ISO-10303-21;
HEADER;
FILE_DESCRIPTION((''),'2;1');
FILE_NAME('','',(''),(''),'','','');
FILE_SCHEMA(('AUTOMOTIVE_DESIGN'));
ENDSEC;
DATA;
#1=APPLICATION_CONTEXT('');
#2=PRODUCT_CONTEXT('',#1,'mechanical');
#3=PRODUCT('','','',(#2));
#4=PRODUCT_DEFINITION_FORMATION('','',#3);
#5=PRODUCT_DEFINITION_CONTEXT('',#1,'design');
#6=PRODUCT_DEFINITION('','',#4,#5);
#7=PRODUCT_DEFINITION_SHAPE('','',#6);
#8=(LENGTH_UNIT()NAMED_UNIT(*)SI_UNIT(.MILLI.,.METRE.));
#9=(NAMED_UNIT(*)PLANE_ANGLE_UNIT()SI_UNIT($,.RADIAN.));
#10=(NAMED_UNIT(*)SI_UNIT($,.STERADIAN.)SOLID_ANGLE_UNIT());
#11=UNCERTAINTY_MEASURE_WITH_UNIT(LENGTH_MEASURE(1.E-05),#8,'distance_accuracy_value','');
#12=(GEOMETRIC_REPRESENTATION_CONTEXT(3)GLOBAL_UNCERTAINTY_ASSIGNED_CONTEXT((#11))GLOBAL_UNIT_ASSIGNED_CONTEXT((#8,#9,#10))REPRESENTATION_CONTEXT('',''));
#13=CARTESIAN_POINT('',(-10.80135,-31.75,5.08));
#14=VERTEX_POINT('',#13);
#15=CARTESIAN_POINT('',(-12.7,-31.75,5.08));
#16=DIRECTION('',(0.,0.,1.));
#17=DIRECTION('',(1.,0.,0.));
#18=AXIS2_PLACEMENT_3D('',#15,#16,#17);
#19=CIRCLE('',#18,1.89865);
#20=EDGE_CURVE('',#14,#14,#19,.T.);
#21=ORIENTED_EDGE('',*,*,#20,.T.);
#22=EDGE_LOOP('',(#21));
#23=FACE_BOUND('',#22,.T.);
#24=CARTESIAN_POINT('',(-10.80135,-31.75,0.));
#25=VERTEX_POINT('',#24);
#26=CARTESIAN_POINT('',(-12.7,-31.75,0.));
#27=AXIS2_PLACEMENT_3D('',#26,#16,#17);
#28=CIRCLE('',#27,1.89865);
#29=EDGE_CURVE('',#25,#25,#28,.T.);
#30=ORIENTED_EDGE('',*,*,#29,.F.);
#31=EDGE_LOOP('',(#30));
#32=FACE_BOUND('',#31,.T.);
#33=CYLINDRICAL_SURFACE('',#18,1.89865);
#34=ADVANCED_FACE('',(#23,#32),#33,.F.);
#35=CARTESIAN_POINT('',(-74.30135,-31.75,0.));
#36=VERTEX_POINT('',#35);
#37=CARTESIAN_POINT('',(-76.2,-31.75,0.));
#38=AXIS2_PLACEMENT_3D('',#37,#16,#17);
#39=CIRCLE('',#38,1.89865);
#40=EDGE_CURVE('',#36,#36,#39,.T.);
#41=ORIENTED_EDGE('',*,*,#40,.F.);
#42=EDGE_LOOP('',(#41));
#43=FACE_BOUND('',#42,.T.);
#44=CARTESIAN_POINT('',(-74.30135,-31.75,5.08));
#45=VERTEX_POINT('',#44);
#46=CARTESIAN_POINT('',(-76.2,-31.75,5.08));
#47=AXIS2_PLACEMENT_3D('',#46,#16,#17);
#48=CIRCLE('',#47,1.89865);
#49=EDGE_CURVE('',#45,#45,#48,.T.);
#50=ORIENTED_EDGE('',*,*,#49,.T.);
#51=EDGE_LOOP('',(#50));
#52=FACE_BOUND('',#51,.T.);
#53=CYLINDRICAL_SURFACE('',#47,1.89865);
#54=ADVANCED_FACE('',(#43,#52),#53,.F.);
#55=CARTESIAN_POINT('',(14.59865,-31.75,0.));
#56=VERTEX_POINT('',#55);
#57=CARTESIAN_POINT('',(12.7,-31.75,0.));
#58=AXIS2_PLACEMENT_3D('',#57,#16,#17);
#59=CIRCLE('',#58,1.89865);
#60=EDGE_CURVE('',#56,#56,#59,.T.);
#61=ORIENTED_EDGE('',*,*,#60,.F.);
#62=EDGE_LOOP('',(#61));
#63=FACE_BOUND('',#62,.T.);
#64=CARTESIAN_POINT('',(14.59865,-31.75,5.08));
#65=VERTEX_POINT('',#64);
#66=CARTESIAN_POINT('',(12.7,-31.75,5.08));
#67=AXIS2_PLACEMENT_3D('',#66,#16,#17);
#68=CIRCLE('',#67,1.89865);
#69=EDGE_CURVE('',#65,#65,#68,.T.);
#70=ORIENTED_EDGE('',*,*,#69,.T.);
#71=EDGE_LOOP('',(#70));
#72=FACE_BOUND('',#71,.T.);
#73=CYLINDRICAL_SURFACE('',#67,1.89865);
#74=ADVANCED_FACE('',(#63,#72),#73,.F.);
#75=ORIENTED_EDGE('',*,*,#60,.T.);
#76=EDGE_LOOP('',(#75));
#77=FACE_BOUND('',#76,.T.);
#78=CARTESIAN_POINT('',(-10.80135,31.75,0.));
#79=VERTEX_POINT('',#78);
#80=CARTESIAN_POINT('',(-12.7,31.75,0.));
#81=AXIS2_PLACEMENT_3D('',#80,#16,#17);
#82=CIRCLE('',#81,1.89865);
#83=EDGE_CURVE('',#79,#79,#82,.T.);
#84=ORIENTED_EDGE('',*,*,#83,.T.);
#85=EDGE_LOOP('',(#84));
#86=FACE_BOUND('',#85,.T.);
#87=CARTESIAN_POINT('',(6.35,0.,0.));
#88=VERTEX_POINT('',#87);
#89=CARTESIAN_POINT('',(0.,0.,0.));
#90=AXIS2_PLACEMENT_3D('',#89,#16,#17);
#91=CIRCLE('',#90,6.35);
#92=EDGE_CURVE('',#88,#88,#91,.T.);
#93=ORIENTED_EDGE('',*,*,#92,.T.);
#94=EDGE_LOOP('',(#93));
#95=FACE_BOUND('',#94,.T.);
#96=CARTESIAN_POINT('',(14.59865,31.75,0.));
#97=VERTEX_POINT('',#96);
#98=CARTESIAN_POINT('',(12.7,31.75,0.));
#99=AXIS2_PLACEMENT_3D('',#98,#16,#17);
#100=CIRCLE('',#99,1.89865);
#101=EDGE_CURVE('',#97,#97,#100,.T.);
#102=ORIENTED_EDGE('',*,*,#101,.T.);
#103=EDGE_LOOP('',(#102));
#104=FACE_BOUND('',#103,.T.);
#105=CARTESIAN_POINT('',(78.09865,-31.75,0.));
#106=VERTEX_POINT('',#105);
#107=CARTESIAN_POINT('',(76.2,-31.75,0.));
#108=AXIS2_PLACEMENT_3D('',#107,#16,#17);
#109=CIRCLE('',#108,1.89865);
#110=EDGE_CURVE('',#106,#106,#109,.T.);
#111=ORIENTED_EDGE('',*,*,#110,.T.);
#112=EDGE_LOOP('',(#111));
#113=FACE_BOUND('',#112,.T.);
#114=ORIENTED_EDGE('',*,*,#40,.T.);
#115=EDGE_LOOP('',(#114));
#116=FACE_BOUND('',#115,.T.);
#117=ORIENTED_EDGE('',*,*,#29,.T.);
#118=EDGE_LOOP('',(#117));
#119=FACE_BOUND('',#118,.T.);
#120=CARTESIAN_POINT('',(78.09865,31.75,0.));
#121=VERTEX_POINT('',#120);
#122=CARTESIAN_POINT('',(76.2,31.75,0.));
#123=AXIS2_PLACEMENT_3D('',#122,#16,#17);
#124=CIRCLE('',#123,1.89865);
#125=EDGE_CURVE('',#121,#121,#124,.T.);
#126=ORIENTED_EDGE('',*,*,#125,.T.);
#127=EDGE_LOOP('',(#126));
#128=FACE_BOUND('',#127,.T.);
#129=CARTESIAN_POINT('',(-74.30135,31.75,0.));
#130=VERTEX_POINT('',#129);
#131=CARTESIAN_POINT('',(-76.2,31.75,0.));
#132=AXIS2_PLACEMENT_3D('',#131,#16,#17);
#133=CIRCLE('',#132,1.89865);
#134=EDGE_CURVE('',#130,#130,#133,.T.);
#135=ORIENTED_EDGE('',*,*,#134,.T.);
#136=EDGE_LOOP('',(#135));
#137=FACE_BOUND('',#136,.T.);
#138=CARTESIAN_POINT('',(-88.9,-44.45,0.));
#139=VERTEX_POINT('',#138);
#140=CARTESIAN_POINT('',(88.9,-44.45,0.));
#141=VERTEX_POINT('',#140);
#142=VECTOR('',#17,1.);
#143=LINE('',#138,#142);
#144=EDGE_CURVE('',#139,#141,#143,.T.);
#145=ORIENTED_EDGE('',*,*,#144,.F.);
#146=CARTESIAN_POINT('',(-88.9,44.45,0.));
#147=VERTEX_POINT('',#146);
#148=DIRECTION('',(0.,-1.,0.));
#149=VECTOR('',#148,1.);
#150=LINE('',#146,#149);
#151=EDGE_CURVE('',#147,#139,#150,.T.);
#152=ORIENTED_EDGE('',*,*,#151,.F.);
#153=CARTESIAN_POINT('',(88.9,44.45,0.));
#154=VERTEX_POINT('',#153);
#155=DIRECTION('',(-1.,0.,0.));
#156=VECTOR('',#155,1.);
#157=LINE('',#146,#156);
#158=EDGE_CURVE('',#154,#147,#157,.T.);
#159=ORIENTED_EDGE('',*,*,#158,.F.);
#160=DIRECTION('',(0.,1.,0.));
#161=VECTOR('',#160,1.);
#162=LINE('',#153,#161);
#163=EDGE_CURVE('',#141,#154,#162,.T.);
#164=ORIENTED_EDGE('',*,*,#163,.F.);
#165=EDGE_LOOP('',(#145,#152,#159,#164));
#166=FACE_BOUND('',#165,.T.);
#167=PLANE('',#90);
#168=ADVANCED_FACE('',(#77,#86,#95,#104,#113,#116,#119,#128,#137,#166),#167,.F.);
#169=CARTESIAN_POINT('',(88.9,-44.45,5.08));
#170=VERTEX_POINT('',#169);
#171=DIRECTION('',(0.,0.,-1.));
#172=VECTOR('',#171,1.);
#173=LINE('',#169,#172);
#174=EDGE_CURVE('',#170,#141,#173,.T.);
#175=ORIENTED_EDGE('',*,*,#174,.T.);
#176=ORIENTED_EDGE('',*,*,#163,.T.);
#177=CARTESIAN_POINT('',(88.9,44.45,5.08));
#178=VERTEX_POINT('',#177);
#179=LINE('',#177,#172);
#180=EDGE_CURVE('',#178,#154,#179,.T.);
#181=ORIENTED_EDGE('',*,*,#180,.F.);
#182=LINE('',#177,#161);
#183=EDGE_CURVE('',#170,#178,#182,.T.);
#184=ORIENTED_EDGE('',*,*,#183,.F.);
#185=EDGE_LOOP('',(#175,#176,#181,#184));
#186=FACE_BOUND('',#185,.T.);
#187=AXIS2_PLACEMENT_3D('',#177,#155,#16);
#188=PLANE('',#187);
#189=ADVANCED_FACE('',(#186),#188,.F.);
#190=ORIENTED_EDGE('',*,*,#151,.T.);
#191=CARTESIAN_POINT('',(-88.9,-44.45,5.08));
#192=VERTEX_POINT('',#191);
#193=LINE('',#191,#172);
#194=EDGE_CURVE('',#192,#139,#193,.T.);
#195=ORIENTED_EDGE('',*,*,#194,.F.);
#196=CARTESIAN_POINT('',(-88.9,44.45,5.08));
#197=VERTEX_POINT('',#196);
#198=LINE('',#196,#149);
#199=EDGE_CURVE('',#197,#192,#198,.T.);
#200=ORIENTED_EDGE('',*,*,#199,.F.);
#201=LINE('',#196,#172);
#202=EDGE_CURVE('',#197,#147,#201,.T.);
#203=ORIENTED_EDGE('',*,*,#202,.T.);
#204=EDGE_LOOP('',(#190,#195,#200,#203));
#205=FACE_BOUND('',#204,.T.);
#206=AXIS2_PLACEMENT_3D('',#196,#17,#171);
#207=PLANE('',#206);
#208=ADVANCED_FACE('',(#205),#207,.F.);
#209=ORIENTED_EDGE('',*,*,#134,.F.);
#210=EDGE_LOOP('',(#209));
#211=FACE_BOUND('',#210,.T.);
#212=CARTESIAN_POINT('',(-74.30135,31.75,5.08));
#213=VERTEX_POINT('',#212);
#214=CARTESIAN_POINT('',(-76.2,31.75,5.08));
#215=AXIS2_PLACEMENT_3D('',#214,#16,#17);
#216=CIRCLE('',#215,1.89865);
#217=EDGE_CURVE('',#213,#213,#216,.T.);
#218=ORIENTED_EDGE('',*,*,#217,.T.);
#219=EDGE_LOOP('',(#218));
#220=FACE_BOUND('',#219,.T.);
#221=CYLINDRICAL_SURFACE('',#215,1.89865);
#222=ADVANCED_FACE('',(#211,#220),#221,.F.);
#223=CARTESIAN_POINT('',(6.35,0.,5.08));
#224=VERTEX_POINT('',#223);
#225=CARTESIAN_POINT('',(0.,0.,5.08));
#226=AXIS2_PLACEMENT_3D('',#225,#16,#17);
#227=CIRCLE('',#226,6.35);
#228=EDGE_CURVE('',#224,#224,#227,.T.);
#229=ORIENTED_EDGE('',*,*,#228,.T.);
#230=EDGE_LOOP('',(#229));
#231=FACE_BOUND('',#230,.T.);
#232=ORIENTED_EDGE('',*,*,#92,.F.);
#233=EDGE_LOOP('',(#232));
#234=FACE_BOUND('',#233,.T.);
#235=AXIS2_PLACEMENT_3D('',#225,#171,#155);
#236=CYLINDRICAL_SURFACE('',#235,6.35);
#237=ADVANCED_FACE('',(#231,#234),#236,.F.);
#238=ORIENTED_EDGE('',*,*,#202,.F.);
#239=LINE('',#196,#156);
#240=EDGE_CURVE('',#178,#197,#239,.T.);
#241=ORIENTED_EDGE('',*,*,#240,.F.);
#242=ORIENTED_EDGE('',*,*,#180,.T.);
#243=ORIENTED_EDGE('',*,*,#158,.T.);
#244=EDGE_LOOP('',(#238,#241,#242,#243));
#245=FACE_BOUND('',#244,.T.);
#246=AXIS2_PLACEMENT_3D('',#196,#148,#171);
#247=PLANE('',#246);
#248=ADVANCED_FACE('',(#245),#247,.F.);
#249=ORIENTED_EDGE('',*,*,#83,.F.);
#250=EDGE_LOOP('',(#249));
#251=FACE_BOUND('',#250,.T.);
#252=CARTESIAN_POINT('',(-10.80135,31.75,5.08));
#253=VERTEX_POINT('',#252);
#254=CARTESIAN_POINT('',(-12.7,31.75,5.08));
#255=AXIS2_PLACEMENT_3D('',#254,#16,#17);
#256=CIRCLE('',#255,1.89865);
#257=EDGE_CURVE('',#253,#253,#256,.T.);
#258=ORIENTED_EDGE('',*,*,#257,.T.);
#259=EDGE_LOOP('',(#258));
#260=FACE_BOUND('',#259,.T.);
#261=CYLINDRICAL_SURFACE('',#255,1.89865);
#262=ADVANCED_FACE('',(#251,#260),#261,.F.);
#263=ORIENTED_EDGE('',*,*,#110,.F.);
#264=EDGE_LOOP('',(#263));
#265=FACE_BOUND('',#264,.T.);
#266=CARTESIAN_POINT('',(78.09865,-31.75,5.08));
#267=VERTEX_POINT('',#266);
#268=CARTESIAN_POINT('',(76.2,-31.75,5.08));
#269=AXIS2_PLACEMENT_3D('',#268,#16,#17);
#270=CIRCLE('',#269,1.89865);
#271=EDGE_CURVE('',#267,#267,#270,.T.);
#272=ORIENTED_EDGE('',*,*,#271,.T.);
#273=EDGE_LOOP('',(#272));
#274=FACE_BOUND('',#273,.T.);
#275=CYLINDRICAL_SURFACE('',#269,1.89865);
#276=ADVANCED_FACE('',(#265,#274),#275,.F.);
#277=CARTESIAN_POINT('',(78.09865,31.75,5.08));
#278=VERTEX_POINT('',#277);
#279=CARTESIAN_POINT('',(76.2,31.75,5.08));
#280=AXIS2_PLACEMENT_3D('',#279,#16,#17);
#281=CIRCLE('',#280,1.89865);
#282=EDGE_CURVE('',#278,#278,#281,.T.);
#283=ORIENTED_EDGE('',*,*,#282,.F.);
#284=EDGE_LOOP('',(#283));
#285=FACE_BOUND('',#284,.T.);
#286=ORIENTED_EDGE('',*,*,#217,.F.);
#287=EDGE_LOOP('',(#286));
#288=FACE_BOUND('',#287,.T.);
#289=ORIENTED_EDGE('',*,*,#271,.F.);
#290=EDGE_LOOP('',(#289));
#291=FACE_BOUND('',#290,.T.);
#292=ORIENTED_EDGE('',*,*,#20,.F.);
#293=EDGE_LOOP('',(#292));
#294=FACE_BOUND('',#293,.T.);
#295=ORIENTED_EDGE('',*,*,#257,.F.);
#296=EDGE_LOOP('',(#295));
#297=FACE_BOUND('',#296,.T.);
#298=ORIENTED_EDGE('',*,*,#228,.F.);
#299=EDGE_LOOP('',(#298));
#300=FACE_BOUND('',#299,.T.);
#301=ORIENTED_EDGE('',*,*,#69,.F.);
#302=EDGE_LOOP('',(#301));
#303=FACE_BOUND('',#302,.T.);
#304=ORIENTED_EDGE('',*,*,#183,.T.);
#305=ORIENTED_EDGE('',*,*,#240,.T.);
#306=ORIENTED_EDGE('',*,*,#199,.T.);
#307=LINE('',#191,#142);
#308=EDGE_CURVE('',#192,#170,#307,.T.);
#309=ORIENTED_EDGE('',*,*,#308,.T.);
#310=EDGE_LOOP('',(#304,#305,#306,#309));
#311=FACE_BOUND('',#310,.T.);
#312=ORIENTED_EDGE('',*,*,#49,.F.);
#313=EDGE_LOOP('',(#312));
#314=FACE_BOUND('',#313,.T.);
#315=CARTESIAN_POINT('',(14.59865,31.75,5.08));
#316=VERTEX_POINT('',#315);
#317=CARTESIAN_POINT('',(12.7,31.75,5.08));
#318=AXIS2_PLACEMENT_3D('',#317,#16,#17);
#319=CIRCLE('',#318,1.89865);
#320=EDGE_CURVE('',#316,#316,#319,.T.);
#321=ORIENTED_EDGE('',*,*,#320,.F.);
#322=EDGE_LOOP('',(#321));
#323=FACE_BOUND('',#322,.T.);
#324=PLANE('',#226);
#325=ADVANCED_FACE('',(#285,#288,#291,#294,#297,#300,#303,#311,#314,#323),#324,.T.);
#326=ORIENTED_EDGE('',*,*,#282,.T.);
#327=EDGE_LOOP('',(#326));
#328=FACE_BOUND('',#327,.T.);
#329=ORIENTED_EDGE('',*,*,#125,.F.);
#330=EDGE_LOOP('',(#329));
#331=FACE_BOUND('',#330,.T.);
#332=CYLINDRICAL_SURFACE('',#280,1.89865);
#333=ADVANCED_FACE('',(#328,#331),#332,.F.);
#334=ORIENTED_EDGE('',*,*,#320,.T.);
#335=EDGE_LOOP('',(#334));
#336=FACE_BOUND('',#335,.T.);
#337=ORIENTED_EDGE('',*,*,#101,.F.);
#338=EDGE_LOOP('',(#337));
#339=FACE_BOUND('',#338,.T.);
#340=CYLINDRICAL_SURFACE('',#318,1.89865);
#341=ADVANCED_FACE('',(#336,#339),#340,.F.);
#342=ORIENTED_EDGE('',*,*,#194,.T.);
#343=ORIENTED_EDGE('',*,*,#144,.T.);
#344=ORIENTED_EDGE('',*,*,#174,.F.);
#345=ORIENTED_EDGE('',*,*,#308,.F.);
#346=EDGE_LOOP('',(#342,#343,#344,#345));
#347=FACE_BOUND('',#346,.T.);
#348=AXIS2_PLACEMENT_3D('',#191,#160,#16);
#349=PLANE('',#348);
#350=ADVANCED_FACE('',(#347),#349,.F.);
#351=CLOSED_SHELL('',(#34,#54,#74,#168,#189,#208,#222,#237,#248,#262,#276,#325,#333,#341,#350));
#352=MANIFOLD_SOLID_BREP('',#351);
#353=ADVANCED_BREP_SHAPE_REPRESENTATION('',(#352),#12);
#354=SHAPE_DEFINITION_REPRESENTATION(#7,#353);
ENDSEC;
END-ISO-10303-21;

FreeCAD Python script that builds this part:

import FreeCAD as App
import Part
import Sketcher

V = App.Vector
Q = App.Units.Quantity


def add_polygon(sketch, points):
    """Adds a closed chain of lines whose ends are joined by coincident constraints."""
    first, n = sketch.GeometryCount, len(points)
    for a, b in zip(points, points[1:] + points[:1]):
        sketch.addGeometry(Part.LineSegment(App.Vector(*a, 0), App.Vector(*b, 0)), False)
    for i in range(n):
        sketch.addConstraint(Sketcher.Constraint("Coincident", first + i, 2, first + (i + 1) % n, 1))

doc = App.newDocument("Part")
body = doc.addObject("PartDesign::Body", "Body")

sketch1 = body.newObject("Sketcher::SketchObject", "Sketch")
sketch1.AttachmentSupport = (doc.getObject("XY_Plane"), [""])
sketch1.MapMode = "FlatFace"
add_polygon(sketch1, [(-89, 44), (-89, -44), (89, -44), (89, 44)])
sketch1.addGeometry(Part.Circle(V(0, 0, 0), V(0, 0, 1), 6), False)
sketch1.addConstraint(Sketcher.Constraint("Vertical", 0))
sketch1.addConstraint(Sketcher.Constraint("Horizontal", 1))
sketch1.addConstraint(Sketcher.Constraint("Vertical", 2))
sketch1.addConstraint(Sketcher.Constraint("Horizontal", 3))
sketch1.addConstraint(Sketcher.Constraint("Coincident", 4, 3, -1, 1))
sketch1.addConstraint(Sketcher.Constraint("Symmetric", 0, 2, 2, 2, -1, 1))
sketch1.addConstraint(Sketcher.Constraint("Diameter", 4, Q("0.5 in")))
sketch1.addConstraint(Sketcher.Constraint("DistanceX", 1, 1, 1, 2, Q("7 in")))
sketch1.addConstraint(Sketcher.Constraint("DistanceY", 0, 2, 0, 1, Q("3.5 in")))
pad1 = body.newObject("PartDesign::Pad", "Pad")
pad1.Profile = sketch1
pad1.Length = Q("0.2 in")

sketch2 = body.newObject("Sketcher::SketchObject", "Sketch001")
sketch2.AttachmentSupport = (doc.getObject("XY_Plane"), [""])
sketch2.MapMode = "FlatFace"
sketch2.AttachmentOffset = App.Placement(V(0, 0, 0.2 * 25.4), App.Rotation())
sketch2.addGeometry(Part.Circle(V(76.2, -31.8, 0), V(0, 0, 1), 1.9), False)
sketch2.addGeometry(Part.Circle(V(-76.2, 31.8, 0), V(0, 0, 1), 1.9), False)
sketch2.addGeometry(Part.Circle(V(-76.2, -31.8, 0), V(0, 0, 1), 1.9), False)
sketch2.addGeometry(Part.Circle(V(76.2, 31.8, 0), V(0, 0, 1), 1.9), False)
sketch2.addGeometry(Part.Circle(V(12.7, -31.8, 0), V(0, 0, 1), 1.9), False)
sketch2.addGeometry(Part.Circle(V(-12.7, 31.8, 0), V(0, 0, 1), 1.9), False)
sketch2.addGeometry(Part.Circle(V(-12.7, -31.8, 0), V(0, 0, 1), 1.9), False)
sketch2.addGeometry(Part.Circle(V(12.7, 31.8, 0), V(0, 0, 1), 1.9), False)
sketch2.addConstraint(Sketcher.Constraint("Equal", 0, 1))
sketch2.addConstraint(Sketcher.Constraint("Equal", 1, 2))
sketch2.addConstraint(Sketcher.Constraint("Equal", 2, 3))
sketch2.addConstraint(Sketcher.Constraint("Equal", 3, 4))
sketch2.addConstraint(Sketcher.Constraint("Equal", 4, 5))
sketch2.addConstraint(Sketcher.Constraint("Equal", 5, 6))
sketch2.addConstraint(Sketcher.Constraint("Equal", 6, 7))
sketch2.addConstraint(Sketcher.Constraint("Symmetric", 0, 3, 1, 3, -1, 1))
sketch2.addConstraint(Sketcher.Constraint("Symmetric", 2, 3, 3, 3, -1, 1))
sketch2.addConstraint(Sketcher.Constraint("Symmetric", 4, 3, 5, 3, -1, 1))
sketch2.addConstraint(Sketcher.Constraint("Symmetric", 6, 3, 7, 3, -1, 1))
sketch2.addConstraint(Sketcher.Constraint("Symmetric", 0, 3, 2, 3, -2))
sketch2.addConstraint(Sketcher.Constraint("Symmetric", 4, 3, 6, 3, -2))
sketch2.addConstraint(Sketcher.Constraint("Horizontal", 2, 3, 4, 3))
sketch2.addConstraint(Sketcher.Constraint("DistanceX", -1, 1, 0, 3, Q("3 in")))
sketch2.addConstraint(Sketcher.Constraint("DistanceX", 5, 3, 4, 3, Q("1 in")))
sketch2.addConstraint(Sketcher.Constraint("Diameter", 0, Q("0.1495 in")))
sketch2.addConstraint(Sketcher.Constraint("DistanceY", 0, 3, 1, 3, Q("2.5 in")))
doc.recompute()
hole = body.newObject("PartDesign::Hole", "Hole")
hole.Profile = sketch2
hole.ThreadType = "None"
hole.Diameter = Q("0.1495 in")
hole.DepthType = "ThroughAll"

doc.recompute()
